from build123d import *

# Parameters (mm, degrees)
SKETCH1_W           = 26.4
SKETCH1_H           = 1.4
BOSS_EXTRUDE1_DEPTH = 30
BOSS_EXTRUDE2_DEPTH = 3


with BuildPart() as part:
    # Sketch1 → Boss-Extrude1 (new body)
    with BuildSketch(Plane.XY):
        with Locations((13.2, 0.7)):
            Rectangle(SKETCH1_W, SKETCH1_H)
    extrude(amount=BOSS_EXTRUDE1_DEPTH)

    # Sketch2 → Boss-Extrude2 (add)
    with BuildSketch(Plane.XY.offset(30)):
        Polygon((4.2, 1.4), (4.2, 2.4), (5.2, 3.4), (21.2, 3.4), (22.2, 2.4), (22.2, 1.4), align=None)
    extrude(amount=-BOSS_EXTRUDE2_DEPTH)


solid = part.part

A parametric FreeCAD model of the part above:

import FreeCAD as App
import Part
import Sketcher
Q = App.Units.Quantity

doc = App.newDocument("Part")
params = doc.addObject("Spreadsheet::Sheet", "Params")
for row, (alias, value) in enumerate([
    ("sketch1_width", "26.4 mm"),
    ("sketch1_height", "1.4 mm"),
    ("pad1_length", "30 mm"),
    ("sketch2_width", "18 mm"),
    ("sketch2_width2", "16 mm"),
    ("sketch2_height", "1 mm"),
    ("pad2_length", "3 mm"),
], start=1):
    params.set(f"A{row}", alias)
    params.set(f"B{row}", "=" + value)
    params.setAlias(f"B{row}", alias)

body = doc.addObject("PartDesign::Body", "Body")

sketch1 = body.newObject("Sketcher::SketchObject", "Sketch")
sketch1.AttachmentSupport = (doc.getObject("XY_Plane"), [""])
sketch1.MapMode = "FlatFace"
sketch1.addGeometry(Part.LineSegment(App.Vector(0, 1.4, 0), App.Vector(0, 0, 0)), False)
sketch1.addGeometry(Part.LineSegment(App.Vector(0, 0, 0), App.Vector(26.4, 0, 0)), False)
sketch1.addGeometry(Part.LineSegment(App.Vector(26.4, 0, 0), App.Vector(26.4, 1.4, 0)), False)
sketch1.addGeometry(Part.LineSegment(App.Vector(26.4, 1.4, 0), App.Vector(0, 1.4, 0)), False)
sketch1.addConstraint(Sketcher.Constraint("Coincident", 0, 2, 1, 1))
sketch1.addConstraint(Sketcher.Constraint("Coincident", 1, 2, 2, 1))
sketch1.addConstraint(Sketcher.Constraint("Coincident", 2, 2, 3, 1))
sketch1.addConstraint(Sketcher.Constraint("Coincident", 3, 2, 0, 1))
sketch1.addConstraint(Sketcher.Constraint("Vertical", 0))
sketch1.addConstraint(Sketcher.Constraint("Horizontal", 1))
sketch1.addConstraint(Sketcher.Constraint("Vertical", 2))
sketch1.addConstraint(Sketcher.Constraint("Horizontal", 3))
sketch1.addConstraint(Sketcher.Constraint("Coincident", 0, 2, -1, 1))
sketch1.addConstraint(Sketcher.Constraint("DistanceX", 1, 1, 1, 2, Q("26.4 mm")))
sketch1.addConstraint(Sketcher.Constraint("DistanceY", 0, 2, 0, 1, Q("1.4 mm")))
sketch1.setExpression("Constraints[9]", "Params.sketch1_width")
sketch1.setExpression("Constraints[10]", "Params.sketch1_height")
pad1 = body.newObject("PartDesign::Pad", "Pad")
pad1.Profile = sketch1
pad1.setExpression("Length", "Params.pad1_length")

sketch2 = body.newObject("Sketcher::SketchObject", "Sketch001")
sketch2.AttachmentSupport = (doc.getObject("XY_Plane"), [""])
sketch2.MapMode = "FlatFace"
sketch2.AttachmentOffset = App.Placement(App.Vector(0, 0, 30), App.Rotation())
sketch2.addGeometry(Part.LineSegment(App.Vector(4.2, 2.4, 0), App.Vector(4.2, 1.4, 0)), False)
sketch2.addGeometry(Part.LineSegment(App.Vector(4.2, 1.4, 0), App.Vector(22.2, 1.4, 0)), False)
sketch2.addGeometry(Part.LineSegment(App.Vector(22.2, 1.4, 0), App.Vector(22.2, 2.4, 0)), False)
sketch2.addGeometry(Part.LineSegment(App.Vector(22.2, 2.4, 0), App.Vector(21.2, 3.4, 0)), False)
sketch2.addGeometry(Part.LineSegment(App.Vector(21.2, 3.4, 0), App.Vector(5.2, 3.4, 0)), False)
sketch2.addGeometry(Part.LineSegment(App.Vector(5.2, 3.4, 0), App.Vector(4.2, 2.4, 0)), False)
sketch2.addConstraint(Sketcher.Constraint("Coincident", 0, 2, 1, 1))
sketch2.addConstraint(Sketcher.Constraint("Coincident", 1, 2, 2, 1))
sketch2.addConstraint(Sketcher.Constraint("Coincident", 2, 2, 3, 1))
sketch2.addConstraint(Sketcher.Constraint("Coincident", 3, 2, 4, 1))
sketch2.addConstraint(Sketcher.Constraint("Coincident", 4, 2, 5, 1))
sketch2.addConstraint(Sketcher.Constraint("Coincident", 5, 2, 0, 1))
sketch2.addConstraint(Sketcher.Constraint("Vertical", 0))
sketch2.addConstraint(Sketcher.Constraint("Horizontal", 1))
sketch2.addConstraint(Sketcher.Constraint("Vertical", 2))
sketch2.addConstraint(Sketcher.Constraint("Horizontal", 4))
sketch2.addConstraint(Sketcher.Constraint("Perpendicular", 3, 5))
sketch2.addConstraint(Sketcher.Constraint("Horizontal", 2, 2, 5, 2))
sketch2.addConstraint(Sketcher.Constraint("Equal", 3, 5))
sketch2.addConstraint(Sketcher.Constraint("DistanceX", 1, 1, 1, 2, Q("18 mm")))
sketch2.addConstraint(Sketcher.Constraint("DistanceX", 4, 2, 4, 1, Q("16 mm")))
sketch2.addConstraint(Sketcher.Constraint("DistanceY", 0, 2, 0, 1, Q("1 mm")))
sketch2.addConstraint(Sketcher.Constraint("DistanceX", -1, 1, 0, 2, Q("4.2 mm")))
sketch2.addConstraint(Sketcher.Constraint("DistanceY", -1, 1, 0, 2, Q("1.4 mm")))
sketch2.setExpression("Constraints[13]", "Params.sketch2_width")
sketch2.setExpression("Constraints[14]", "Params.sketch2_width2")
sketch2.setExpression("Constraints[15]", "Params.sketch2_height")
pad2 = body.newObject("PartDesign::Pad", "Pad001")
pad2.Profile = sketch2
pad2.setExpression("Length", "Params.pad2_length")
pad2.Reversed = True

doc.recompute()
